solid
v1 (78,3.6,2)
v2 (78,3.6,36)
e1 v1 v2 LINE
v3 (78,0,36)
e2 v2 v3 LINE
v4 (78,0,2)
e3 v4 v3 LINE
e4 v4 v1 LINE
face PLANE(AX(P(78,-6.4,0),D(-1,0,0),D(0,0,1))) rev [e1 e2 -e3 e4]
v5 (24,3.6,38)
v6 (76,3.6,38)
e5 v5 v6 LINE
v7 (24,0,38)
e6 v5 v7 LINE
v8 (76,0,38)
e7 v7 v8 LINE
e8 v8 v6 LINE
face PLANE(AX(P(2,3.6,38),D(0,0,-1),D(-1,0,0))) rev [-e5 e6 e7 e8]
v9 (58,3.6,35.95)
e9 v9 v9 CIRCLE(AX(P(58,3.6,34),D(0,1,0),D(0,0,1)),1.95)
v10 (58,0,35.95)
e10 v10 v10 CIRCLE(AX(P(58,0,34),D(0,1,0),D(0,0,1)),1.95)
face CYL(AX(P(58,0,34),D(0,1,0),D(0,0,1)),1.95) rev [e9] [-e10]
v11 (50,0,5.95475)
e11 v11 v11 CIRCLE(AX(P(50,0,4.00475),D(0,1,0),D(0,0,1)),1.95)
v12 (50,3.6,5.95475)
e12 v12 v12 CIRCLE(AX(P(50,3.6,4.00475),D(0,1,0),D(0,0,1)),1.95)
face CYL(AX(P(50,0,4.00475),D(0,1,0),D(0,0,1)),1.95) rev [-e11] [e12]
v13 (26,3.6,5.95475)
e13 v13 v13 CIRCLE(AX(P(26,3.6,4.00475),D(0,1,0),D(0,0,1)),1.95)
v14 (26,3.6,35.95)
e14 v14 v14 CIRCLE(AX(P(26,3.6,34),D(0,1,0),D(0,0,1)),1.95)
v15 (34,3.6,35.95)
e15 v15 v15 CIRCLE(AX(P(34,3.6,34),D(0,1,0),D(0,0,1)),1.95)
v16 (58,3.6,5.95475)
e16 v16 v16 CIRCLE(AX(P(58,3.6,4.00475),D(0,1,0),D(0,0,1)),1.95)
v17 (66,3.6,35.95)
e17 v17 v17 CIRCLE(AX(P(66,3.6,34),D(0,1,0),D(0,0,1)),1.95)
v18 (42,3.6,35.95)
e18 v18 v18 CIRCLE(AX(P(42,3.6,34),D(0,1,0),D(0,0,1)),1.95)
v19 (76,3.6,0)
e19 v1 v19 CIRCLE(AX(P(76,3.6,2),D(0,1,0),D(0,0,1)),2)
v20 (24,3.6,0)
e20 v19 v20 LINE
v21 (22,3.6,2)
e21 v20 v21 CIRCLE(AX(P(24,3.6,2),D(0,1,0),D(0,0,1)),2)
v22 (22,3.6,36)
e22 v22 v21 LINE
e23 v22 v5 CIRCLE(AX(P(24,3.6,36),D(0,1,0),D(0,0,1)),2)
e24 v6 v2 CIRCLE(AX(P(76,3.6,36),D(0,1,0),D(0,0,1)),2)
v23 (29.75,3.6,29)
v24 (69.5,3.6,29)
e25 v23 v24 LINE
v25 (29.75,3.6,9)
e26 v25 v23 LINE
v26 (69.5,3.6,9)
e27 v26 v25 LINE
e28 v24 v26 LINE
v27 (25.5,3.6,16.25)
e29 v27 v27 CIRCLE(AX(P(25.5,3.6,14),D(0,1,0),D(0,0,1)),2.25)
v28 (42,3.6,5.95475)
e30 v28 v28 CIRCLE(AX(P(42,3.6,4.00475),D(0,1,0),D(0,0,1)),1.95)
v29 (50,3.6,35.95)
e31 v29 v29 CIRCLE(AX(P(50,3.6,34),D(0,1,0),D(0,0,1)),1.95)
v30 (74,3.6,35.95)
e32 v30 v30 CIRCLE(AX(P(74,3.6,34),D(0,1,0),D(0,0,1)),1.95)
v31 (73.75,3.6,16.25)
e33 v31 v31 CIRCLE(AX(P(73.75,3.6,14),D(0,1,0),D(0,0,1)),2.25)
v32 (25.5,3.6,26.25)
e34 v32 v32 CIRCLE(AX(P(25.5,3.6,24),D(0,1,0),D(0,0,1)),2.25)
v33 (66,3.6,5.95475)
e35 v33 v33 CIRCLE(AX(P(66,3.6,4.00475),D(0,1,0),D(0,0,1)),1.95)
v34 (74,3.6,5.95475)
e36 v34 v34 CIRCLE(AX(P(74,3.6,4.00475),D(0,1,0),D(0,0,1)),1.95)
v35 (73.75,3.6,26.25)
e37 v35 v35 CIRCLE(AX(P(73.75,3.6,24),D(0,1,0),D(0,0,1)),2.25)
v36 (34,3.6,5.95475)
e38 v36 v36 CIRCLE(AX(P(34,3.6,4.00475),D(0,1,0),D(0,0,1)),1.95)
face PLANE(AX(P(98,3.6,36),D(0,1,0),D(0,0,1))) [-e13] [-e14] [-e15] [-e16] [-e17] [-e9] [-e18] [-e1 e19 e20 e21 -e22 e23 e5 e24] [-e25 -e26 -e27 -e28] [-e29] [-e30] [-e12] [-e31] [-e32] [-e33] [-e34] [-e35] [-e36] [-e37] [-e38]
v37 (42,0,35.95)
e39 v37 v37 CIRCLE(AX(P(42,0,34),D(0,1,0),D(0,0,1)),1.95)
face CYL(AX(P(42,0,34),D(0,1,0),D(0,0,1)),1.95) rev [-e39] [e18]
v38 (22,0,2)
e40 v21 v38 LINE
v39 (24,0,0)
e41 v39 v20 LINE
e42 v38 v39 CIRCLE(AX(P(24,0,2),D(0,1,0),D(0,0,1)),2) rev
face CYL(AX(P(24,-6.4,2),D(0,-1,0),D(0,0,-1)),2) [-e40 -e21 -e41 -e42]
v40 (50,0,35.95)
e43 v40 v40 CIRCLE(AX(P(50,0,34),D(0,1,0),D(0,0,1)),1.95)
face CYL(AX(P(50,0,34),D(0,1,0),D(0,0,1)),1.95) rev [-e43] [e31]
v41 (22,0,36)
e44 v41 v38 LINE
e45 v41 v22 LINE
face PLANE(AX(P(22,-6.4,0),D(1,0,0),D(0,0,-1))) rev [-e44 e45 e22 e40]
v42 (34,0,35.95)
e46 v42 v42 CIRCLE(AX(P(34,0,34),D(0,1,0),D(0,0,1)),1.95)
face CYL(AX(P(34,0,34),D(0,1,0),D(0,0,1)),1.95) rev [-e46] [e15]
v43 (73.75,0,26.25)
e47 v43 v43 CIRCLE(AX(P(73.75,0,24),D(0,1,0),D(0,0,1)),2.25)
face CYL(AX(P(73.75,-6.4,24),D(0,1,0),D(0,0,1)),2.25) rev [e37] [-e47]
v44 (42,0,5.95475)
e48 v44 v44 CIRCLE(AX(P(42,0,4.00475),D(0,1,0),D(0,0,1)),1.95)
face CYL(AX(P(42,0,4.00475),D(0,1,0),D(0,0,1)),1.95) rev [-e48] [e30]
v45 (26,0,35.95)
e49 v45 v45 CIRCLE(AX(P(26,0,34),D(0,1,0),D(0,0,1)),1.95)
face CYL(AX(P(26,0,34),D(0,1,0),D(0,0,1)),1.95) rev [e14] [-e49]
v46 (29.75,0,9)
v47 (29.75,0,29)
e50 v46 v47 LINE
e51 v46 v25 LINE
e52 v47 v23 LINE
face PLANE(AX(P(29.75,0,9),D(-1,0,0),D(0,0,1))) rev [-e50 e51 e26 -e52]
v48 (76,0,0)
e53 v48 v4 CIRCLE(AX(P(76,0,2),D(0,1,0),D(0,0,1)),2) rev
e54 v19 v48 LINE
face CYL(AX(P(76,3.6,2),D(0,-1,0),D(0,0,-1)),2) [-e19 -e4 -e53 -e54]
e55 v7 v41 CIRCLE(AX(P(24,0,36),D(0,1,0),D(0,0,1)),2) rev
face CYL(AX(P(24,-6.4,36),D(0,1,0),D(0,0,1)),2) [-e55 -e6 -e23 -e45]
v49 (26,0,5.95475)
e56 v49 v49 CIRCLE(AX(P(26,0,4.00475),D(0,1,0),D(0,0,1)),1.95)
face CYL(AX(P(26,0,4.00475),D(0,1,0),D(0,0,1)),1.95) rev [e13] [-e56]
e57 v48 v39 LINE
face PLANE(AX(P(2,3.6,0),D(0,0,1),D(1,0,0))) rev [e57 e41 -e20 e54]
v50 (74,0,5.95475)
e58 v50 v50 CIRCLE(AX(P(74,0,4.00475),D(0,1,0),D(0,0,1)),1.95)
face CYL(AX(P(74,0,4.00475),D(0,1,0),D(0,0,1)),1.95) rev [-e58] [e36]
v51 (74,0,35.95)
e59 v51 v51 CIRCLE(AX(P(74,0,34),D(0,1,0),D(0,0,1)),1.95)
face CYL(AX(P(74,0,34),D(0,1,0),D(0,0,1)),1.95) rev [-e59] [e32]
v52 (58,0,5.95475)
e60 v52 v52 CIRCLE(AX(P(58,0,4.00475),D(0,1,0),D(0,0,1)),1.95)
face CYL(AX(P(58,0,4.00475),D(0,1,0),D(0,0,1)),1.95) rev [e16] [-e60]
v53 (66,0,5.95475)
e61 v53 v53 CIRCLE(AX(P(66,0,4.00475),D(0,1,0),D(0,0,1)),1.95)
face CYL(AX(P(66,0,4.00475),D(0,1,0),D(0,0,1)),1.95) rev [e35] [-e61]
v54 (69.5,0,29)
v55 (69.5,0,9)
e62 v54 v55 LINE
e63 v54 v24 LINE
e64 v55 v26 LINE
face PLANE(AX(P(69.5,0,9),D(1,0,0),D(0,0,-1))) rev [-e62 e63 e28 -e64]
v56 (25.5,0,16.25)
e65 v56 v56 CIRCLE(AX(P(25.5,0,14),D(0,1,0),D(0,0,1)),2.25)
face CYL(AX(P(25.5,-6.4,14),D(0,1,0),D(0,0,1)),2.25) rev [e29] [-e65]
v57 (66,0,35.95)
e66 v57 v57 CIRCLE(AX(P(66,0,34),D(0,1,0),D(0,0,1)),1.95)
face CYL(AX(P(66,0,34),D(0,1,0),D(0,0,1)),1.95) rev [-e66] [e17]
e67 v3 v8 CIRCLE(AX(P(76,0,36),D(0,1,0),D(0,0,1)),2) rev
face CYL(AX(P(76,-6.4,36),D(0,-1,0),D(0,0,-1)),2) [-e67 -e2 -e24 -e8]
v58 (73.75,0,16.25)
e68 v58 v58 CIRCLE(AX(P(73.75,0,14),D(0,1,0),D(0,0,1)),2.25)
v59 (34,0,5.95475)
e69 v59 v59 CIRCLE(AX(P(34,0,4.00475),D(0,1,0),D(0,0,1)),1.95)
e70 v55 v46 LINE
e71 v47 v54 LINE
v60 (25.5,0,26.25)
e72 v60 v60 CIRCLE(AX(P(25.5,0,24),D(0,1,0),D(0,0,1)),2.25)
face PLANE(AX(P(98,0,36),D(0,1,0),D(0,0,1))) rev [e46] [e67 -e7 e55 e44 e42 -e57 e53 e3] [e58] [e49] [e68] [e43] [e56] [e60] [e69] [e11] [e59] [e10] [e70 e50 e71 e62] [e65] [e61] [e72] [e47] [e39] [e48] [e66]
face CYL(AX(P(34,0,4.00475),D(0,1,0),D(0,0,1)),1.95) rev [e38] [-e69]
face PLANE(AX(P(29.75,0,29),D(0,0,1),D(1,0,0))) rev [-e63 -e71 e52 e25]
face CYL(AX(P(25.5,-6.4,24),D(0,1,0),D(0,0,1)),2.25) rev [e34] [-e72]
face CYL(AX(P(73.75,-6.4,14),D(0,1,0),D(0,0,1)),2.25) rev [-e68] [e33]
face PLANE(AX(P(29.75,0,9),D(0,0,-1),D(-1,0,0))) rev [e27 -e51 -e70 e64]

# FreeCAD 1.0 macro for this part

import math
import FreeCAD as App
import Part
import Sketcher
Q = App.Units.Quantity


def edges_at(feature, points):
    """Names of the edges that pass closest to the given points."""
    edges = feature.Shape.Edges
    near = lambda p: min(range(len(edges)), key=lambda i: edges[i].distToShape(Part.Vertex(*p))[0])
    return sorted({f"Edge{near(p) + 1}" for p in points})

doc = App.newDocument("Part")
body = doc.addObject("PartDesign::Body", "Body")

# Sketch on XZ plane
sketch1 = doc.addObject("Sketcher::SketchObject", "Sketch")
body.addObject(sketch1)
sketch1.AttachmentSupport = (doc.XZ_Plane, [""])
sketch1.MapMode = "FlatFace"
sketch1.addGeometry([
    Part.LineSegment(App.Vector(98, 0, 0), App.Vector(2, 0, 0)),  # 0
    Part.ArcOfCircle(Part.Circle(App.Vector(2, 2, 0), App.Vector(0, 0, 1), 2), math.radians(-180), math.radians(-90)),  # 1
    Part.LineSegment(App.Vector(0, 2, 0), App.Vector(0, 36, 0)),  # 2
    Part.ArcOfCircle(Part.Circle(App.Vector(2, 36, 0), App.Vector(0, 0, 1), 2), math.radians(90), math.radians(180)),  # 3
    Part.LineSegment(App.Vector(2, 38, 0), App.Vector(98, 38, 0)),  # 4
    Part.ArcOfCircle(Part.Circle(App.Vector(98, 36, 0), App.Vector(0, 0, 1), 2), math.radians(0), math.radians(90)),  # 5
    Part.LineSegment(App.Vector(100, 36, 0), App.Vector(100, 2, 0)),  # 6
    Part.ArcOfCircle(Part.Circle(App.Vector(98, 2, 0), App.Vector(0, 0, 1), 2), math.radians(-90), math.radians(0)),  # 7
], False)
sketch1.addConstraint([
    Sketcher.Constraint("Tangent", 0, 2, 1, 2),
    Sketcher.Constraint("Tangent", 1, 1, 2, 1),
    Sketcher.Constraint("Tangent", 2, 2, 3, 2),
    Sketcher.Constraint("Tangent", 3, 1, 4, 1),
    Sketcher.Constraint("Tangent", 4, 2, 5, 2),
    Sketcher.Constraint("Tangent", 5, 1, 6, 1),
    Sketcher.Constraint("Tangent", 6, 2, 7, 2),
    Sketcher.Constraint("Tangent", 7, 1, 0, 1),
    Sketcher.Constraint("Horizontal", 0),
    Sketcher.Constraint("Vertical", 2),
    Sketcher.Constraint("Horizontal", 4),
    Sketcher.Constraint("Vertical", 6),
    Sketcher.Constraint("Equal", 1, 3),
    Sketcher.Constraint("Equal", 3, 5),
    Sketcher.Constraint("Equal", 5, 7),
    Sketcher.Constraint("PointOnObject", 0, 2, -1),
    Sketcher.Constraint("PointOnObject", 1, 1, -2),
    Sketcher.Constraint("Radius", 1, Q("2 mm")),
    Sketcher.Constraint("DistanceX", 0, 2, 0, 1, Q("96 mm")),
    Sketcher.Constraint("DistanceY", 2, 1, 2, 2, Q("34 mm")),
])
pad1 = doc.addObject("PartDesign::Pad", "Pad")
body.addObject(pad1)
pad1.Profile = sketch1
pad1.Length = 3.6
pad1.Reversed = True

# Sketch on XZ plane
sketch2 = doc.addObject("Sketcher::SketchObject", "Sketch001")
body.addObject(sketch2)
sketch2.AttachmentSupport = (doc.XZ_Plane, [""])
sketch2.MapMode = "FlatFace"
sketch2.AttachmentOffset = App.Placement(App.Vector(0, 0, -3.6), App.Rotation())
sketch2.addGeometry([
    Part.Circle(App.Vector(90, 4, 0), App.Vector(0, 0, 1), 1.9),  # 0
    Part.Circle(App.Vector(82, 4, 0), App.Vector(0, 0, 1), 1.9),  # 1
    Part.Circle(App.Vector(18, 4, 0), App.Vector(0, 0, 1), 1.9),  # 2
    Part.Circle(App.Vector(26, 4, 0), App.Vector(0, 0, 1), 1.9),  # 3
    Part.Circle(App.Vector(34, 4, 0), App.Vector(0, 0, 1), 1.9),  # 4
    Part.Circle(App.Vector(42, 4, 0), App.Vector(0, 0, 1), 1.9),  # 5
    Part.Circle(App.Vector(50, 4, 0), App.Vector(0, 0, 1), 1.9),  # 6
    Part.Circle(App.Vector(58, 4, 0), App.Vector(0, 0, 1), 1.9),  # 7
    Part.Circle(App.Vector(66, 4, 0), App.Vector(0, 0, 1), 1.9),  # 8
    Part.Circle(App.Vector(74, 4, 0), App.Vector(0, 0, 1), 1.9),  # 9
    Part.Circle(App.Vector(90, 34, 0), App.Vector(0, 0, 1), 1.9),  # 10
    Part.Circle(App.Vector(82, 34, 0), App.Vector(0, 0, 1), 1.9),  # 11
    Part.Circle(App.Vector(18, 34, 0), App.Vector(0, 0, 1), 1.9),  # 12
    Part.Circle(App.Vector(26, 34, 0), App.Vector(0, 0, 1), 1.9),  # 13
    Part.Circle(App.Vector(34, 34, 0), App.Vector(0, 0, 1), 1.9),  # 14
    Part.Circle(App.Vector(42, 34, 0), App.Vector(0, 0, 1), 1.9),  # 15
    Part.Circle(App.Vector(50, 34, 0), App.Vector(0, 0, 1), 1.9),  # 16
    Part.Circle(App.Vector(58, 34, 0), App.Vector(0, 0, 1), 1.9),  # 17
    Part.Circle(App.Vector(66, 34, 0), App.Vector(0, 0, 1), 1.9),  # 18
    Part.Circle(App.Vector(74, 34, 0), App.Vector(0, 0, 1), 1.9),  # 19
    Part.LineSegment(App.Vector(29.8, 9, 0), App.Vector(29.8, 29, 0)),  # 20
    Part.LineSegment(App.Vector(29.8, 29, 0), App.Vector(69.5, 29, 0)),  # 21
    Part.LineSegment(App.Vector(69.5, 29, 0), App.Vector(69.5, 9, 0)),  # 22
    Part.LineSegment(App.Vector(69.5, 9, 0), App.Vector(29.8, 9, 0)),  # 23
], False)
sketch2.addConstraint([
    Sketcher.Constraint("Coincident", 20, 2, 21, 1),
    Sketcher.Constraint("Coincident", 21, 2, 22, 1),
    Sketcher.Constraint("Coincident", 22, 2, 23, 1),
    Sketcher.Constraint("Coincident", 23, 2, 20, 1),
    Sketcher.Constraint("Vertical", 20),
    Sketcher.Constraint("Horizontal", 21),
    Sketcher.Constraint("Vertical", 22),
    Sketcher.Constraint("Horizontal", 23),
    Sketcher.Constraint("Equal", 0, 1),
    Sketcher.Constraint("Equal", 1, 2),
    Sketcher.Constraint("Equal", 2, 3),
    Sketcher.Constraint("Equal", 3, 4),
    Sketcher.Constraint("Equal", 4, 5),
    Sketcher.Constraint("Equal", 5, 6),
    Sketcher.Constraint("Equal", 6, 7),
    Sketcher.Constraint("Equal", 7, 8),
    Sketcher.Constraint("Equal", 8, 9),
    Sketcher.Constraint("Equal", 9, 10),
    Sketcher.Constraint("Equal", 10, 11),
    Sketcher.Constraint("Equal", 11, 12),
    Sketcher.Constraint("Equal", 12, 13),
    Sketcher.Constraint("Equal", 13, 14),
    Sketcher.Constraint("Equal", 14, 15),
    Sketcher.Constraint("Equal", 15, 16),
    Sketcher.Constraint("Equal", 16, 17),
    Sketcher.Constraint("Equal", 17, 18),
    Sketcher.Constraint("Equal", 18, 19),
    Sketcher.Constraint("Horizontal", 0, 3, 1, 3),
    Sketcher.Constraint("Horizontal", 1, 3, 2, 3),
    Sketcher.Constraint("Horizontal", 2, 3, 3, 3),
    Sketcher.Constraint("Horizontal", 3, 3, 4, 3),
    Sketcher.Constraint("Horizontal", 4, 3, 5, 3),
    Sketcher.Constraint("Horizontal", 5, 3, 6, 3),
    Sketcher.Constraint("Horizontal", 6, 3, 7, 3),
    Sketcher.Constraint("Horizontal", 7, 3, 8, 3),
    Sketcher.Constraint("Horizontal", 8, 3, 9, 3),
    Sketcher.Constraint("Horizontal", 10, 3, 11, 3),
    Sketcher.Constraint("Horizontal", 11, 3, 12, 3),
    Sketcher.Constraint("Horizontal", 12, 3, 13, 3),
    Sketcher.Constraint("Horizontal", 13, 3, 14, 3),
    Sketcher.Constraint("Horizontal", 14, 3, 15, 3),
    Sketcher.Constraint("Horizontal", 15, 3, 16, 3),
    Sketcher.Constraint("Horizontal", 16, 3, 17, 3),
    Sketcher.Constraint("Horizontal", 17, 3, 18, 3),
    Sketcher.Constraint("Horizontal", 18, 3, 19, 3),
    Sketcher.Constraint("Vertical", 0, 3, 10, 3),
    Sketcher.Constraint("Vertical", 1, 3, 11, 3),
    Sketcher.Constraint("Vertical", 2, 3, 12, 3),
    Sketcher.Constraint("Vertical", 3, 3, 13, 3),
    Sketcher.Constraint("Vertical", 4, 3, 14, 3),
    Sketcher.Constraint("Vertical", 5, 3, 15, 3),
    Sketcher.Constraint("Vertical", 6, 3, 16, 3),
    Sketcher.Constraint("Vertical", 7, 3, 17, 3),
    Sketcher.Constraint("Vertical", 8, 3, 18, 3),
    Sketcher.Constraint("Vertical", 9, 3, 19, 3),
    Sketcher.Constraint("Diameter", 0, Q("3.9 mm")),
    Sketcher.Constraint("DistanceY", 20, 1, 20, 2, Q("20 mm")),
    Sketcher.Constraint("DistanceX", -1, 1, 0, 3, Q("90 mm")),
    Sketcher.Constraint("DistanceX", -1, 1, 1, 3, Q("82 mm")),
    Sketcher.Constraint("DistanceX", -1, 1, 2, 3, Q("18 mm")),
    Sketcher.Constraint("DistanceX", -1, 1, 3, 3, Q("26 mm")),
    Sketcher.Constraint("DistanceX", -1, 1, 4, 3, Q("34 mm")),
    Sketcher.Constraint("DistanceX", -1, 1, 5, 3, Q("42 mm")),
    Sketcher.Constraint("DistanceX", -1, 1, 6, 3, Q("50 mm")),
    Sketcher.Constraint("DistanceX", -1, 1, 7, 3, Q("58 mm")),
    Sketcher.Constraint("DistanceX", -1, 1, 8, 3, Q("66 mm")),
    Sketcher.Constraint("DistanceX", -1, 1, 9, 3, Q("74 mm")),
    Sketcher.Constraint("DistanceY", -1, 1, 10, 3, Q("34 mm")),
    Sketcher.Constraint("DistanceY", -1, 1, 20, 2, Q("29 mm")),
    Sketcher.Constraint("DistanceX", 21, 1, 21, 2, Q("39.75 mm")),
    Sketcher.Constraint("DistanceX", -1, 1, 21, 2, Q("69.5 mm")),
    Sketcher.Constraint("DistanceY", -1, 1, 0, 3, Q("4.00475 mm")),
])
pocket1 = doc.addObject("PartDesign::Pocket", "Pocket")
body.addObject(pocket1)
pocket1.Profile = sketch2
pocket1.Length = 3.6
pocket1.Reversed = True

# Sketch on XZ plane
sketch3 = doc.addObject("Sketcher::SketchObject", "Sketch002")
body.addObject(sketch3)
sketch3.AttachmentSupport = (doc.XZ_Plane, [""])
sketch3.MapMode = "FlatFace"
sketch3.AttachmentOffset = App.Placement(App.Vector(0, 0, -3.6), App.Rotation())
sketch3.addGeometry([
    Part.LineSegment(App.Vector(78, 0, 0), App.Vector(78, 38, 0)),  # 0
    Part.LineSegment(App.Vector(78, 38, 0), App.Vector(100, 38, 0)),  # 1
    Part.LineSegment(App.Vector(100, 38, 0), App.Vector(100, 0, 0)),  # 2
    Part.LineSegment(App.Vector(100, 0, 0), App.Vector(78, 0, 0)),  # 3
    Part.LineSegment(App.Vector(0, 0, 0), App.Vector(0, 38, 0)),  # 4
    Part.LineSegment(App.Vector(0, 38, 0), App.Vector(22, 38, 0)),  # 5
    Part.LineSegment(App.Vector(22, 38, 0), App.Vector(22, 0, 0)),  # 6
    Part.LineSegment(App.Vector(22, 0, 0), App.Vector(0, 0, 0)),  # 7
], False)
sketch3.addConstraint([
    Sketcher.Constraint("Coincident", 0, 2, 1, 1),
    Sketcher.Constraint("Coincident", 1, 2, 2, 1),
    Sketcher.Constraint("Coincident", 2, 2, 3, 1),
    Sketcher.Constraint("Coincident", 3, 2, 0, 1),
    Sketcher.Constraint("Coincident", 4, 2, 5, 1),
    Sketcher.Constraint("Coincident", 5, 2, 6, 1),
    Sketcher.Constraint("Coincident", 6, 2, 7, 1),
    Sketcher.Constraint("Coincident", 7, 2, 4, 1),
    Sketcher.Constraint("Vertical", 0),
    Sketcher.Constraint("Horizontal", 1),
    Sketcher.Constraint("Vertical", 2),
    Sketcher.Constraint("Horizontal", 3),
    Sketcher.Constraint("Vertical", 4),
    Sketcher.Constraint("Horizontal", 5),
    Sketcher.Constraint("Vertical", 6),
    Sketcher.Constraint("Horizontal", 7),
    Sketcher.Constraint("Coincident", 7, 2, -1, 1),
    Sketcher.Constraint("PointOnObject", 2, 2, -1),
    Sketcher.Constraint("Horizontal", 1, 2, 4, 2),
    Sketcher.Constraint("Equal", 3, 5),
    Sketcher.Constraint("DistanceX", 1, 1, 1, 2, Q("22 mm")),
    Sketcher.Constraint("DistanceY", 0, 1, 0, 2, Q("38 mm")),
    Sketcher.Constraint("DistanceX", -1, 1, 0, 2, Q("78 mm")),
])
pocket2 = doc.addObject("PartDesign::Pocket", "Pocket001")
body.addObject(pocket2)
pocket2.Profile = sketch3
pocket2.Length = 10
pocket2.Reversed = True
doc.recompute()

fillet = doc.addObject("PartDesign::Fillet", "Fillet")
body.addObject(fillet)
fillet.Base = (pocket2, edges_at(pocket2, [(22, 1.8, 0)]))
fillet.Radius = 2
doc.recompute()

fillet2 = doc.addObject("PartDesign::Fillet", "Fillet001")
body.addObject(fillet2)
fillet2.Base = (fillet, edges_at(fillet, [(22, 1.8, 38)]))
fillet2.Radius = 2
doc.recompute()

fillet3 = doc.addObject("PartDesign::Fillet", "Fillet002")
body.addObject(fillet3)
fillet3.Base = (fillet2, edges_at(fillet2, [(78, 1.8, 38)]))
fillet3.Radius = 2
doc.recompute()

fillet4 = doc.addObject("PartDesign::Fillet", "Fillet003")
body.addObject(fillet4)
fillet4.Base = (fillet3, edges_at(fillet3, [(78, 1.8, 0)]))
fillet4.Radius = 2

# Sketch on XZ plane
sketch4 = doc.addObject("Sketcher::SketchObject", "Sketch003")
body.addObject(sketch4)
sketch4.AttachmentSupport = (doc.XZ_Plane, [""])
sketch4.MapMode = "FlatFace"
sketch4.AttachmentOffset = App.Placement(App.Vector(0, 0, -3.6), App.Rotation())
sketch4.addGeometry([
    Part.Circle(App.Vector(73.8, 14, 0), App.Vector(0, 0, 1), 2.2),
    Part.Circle(App.Vector(73.8, 24, 0), App.Vector(0, 0, 1), 2.2),
    Part.Circle(App.Vector(25.5, 14, 0), App.Vector(0, 0, 1), 2.2),
    Part.Circle(App.Vector(25.5, 24, 0), App.Vector(0, 0, 1), 2.2),
], False)
sketch4.addConstraint([
    Sketcher.Constraint("Equal", 0, 1),
    Sketcher.Constraint("Equal", 1, 2),
    Sketcher.Constraint("Equal", 2, 3),
    Sketcher.Constraint("Horizontal", 0, 3, 2, 3),
    Sketcher.Constraint("Horizontal", 1, 3, 3, 3),
    Sketcher.Constraint("Vertical", 0, 3, 1, 3),
    Sketcher.Constraint("Vertical", 2, 3, 3, 3),
    Sketcher.Constraint("Diameter", 0, Q("4.5 mm")),
    Sketcher.Constraint("DistanceY", -1, 1, 0, 3, Q("14 mm")),
    Sketcher.Constraint("DistanceY", -1, 1, 1, 3, Q("24 mm")),
    Sketcher.Constraint("DistanceX", -1, 1, 2, 3, Q("25.5 mm")),
    Sketcher.Constraint("DistanceX", -1, 1, 0, 3, Q("73.75 mm")),
])
pocket3 = doc.addObject("PartDesign::Pocket", "Pocket002")
body.addObject(pocket3)
pocket3.Profile = sketch4
pocket3.Length = 10
pocket3.Reversed = True

doc.recompute()
